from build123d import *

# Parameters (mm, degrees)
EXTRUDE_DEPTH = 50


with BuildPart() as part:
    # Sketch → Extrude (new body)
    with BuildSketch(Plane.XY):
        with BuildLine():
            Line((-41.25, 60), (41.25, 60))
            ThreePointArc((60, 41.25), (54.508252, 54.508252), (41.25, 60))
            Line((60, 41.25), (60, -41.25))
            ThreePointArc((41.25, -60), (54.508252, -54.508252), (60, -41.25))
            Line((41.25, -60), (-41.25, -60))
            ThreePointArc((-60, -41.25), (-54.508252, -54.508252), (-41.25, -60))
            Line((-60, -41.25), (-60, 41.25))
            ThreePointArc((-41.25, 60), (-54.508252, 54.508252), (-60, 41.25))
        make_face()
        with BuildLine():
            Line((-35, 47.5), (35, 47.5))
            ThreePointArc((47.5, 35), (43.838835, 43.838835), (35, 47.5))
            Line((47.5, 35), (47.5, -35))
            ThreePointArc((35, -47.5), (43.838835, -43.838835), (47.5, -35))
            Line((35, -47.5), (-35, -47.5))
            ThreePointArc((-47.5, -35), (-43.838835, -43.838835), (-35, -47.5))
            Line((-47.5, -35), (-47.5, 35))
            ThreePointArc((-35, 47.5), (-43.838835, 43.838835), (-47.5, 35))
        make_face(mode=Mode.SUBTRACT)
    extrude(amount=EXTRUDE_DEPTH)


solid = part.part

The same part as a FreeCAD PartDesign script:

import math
import FreeCAD as App
import Part
import Sketcher
Q = App.Units.Quantity

doc = App.newDocument("Part")
params = doc.addObject("Spreadsheet::Sheet", "Params")
for row, (alias, value) in enumerate([
    ("sketch1_radius", "12.499999 mm"),
    ("sketch1_width", "70 mm"),
    ("sketch1_radius2", "18.750001 mm"),
    ("sketch1_width2", "82.5 mm"),
    ("pad1_length", "50 mm"),
], start=1):
    params.set(f"A{row}", alias)
    params.set(f"B{row}", "=" + value)
    params.setAlias(f"B{row}", alias)

body = doc.addObject("PartDesign::Body", "Body")

sketch1 = body.newObject("Sketcher::SketchObject", "Sketch")
sketch1.AttachmentSupport = (doc.getObject("XY_Plane"), [""])
sketch1.MapMode = "FlatFace"
sketch1.addGeometry([
    Part.LineSegment(App.Vector(41, 60, 0), App.Vector(-41, 60, 0)),
    Part.ArcOfCircle(Part.Circle(App.Vector(-41, 41, 0), App.Vector(0, 0, 1), 19), math.radians(90), math.radians(180)),
    Part.LineSegment(App.Vector(-60, 41, 0), App.Vector(-60, -41, 0)),
    Part.ArcOfCircle(Part.Circle(App.Vector(-41, -41, 0), App.Vector(0, 0, 1), 19), math.radians(-180), math.radians(-90)),
    Part.LineSegment(App.Vector(-41, -60, 0), App.Vector(41, -60, 0)),
    Part.ArcOfCircle(Part.Circle(App.Vector(41, -41, 0), App.Vector(0, 0, 1), 19), math.radians(-90), math.radians(0)),
    Part.LineSegment(App.Vector(60, -41, 0), App.Vector(60, 41, 0)),
    Part.ArcOfCircle(Part.Circle(App.Vector(41, 41, 0), App.Vector(0, 0, 1), 19), math.radians(0), math.radians(90)),
    Part.LineSegment(App.Vector(-35, 48, 0), App.Vector(35, 48, 0)),
    Part.ArcOfCircle(Part.Circle(App.Vector(35, 35, 0), App.Vector(0, 0, 1), 12), math.radians(0), math.radians(90)),
    Part.LineSegment(App.Vector(48, 35, 0), App.Vector(48, -35, 0)),
    Part.ArcOfCircle(Part.Circle(App.Vector(35, -35, 0), App.Vector(0, 0, 1), 12), math.radians(-90), math.radians(0)),
    Part.LineSegment(App.Vector(35, -48, 0), App.Vector(-35, -48, 0)),
    Part.ArcOfCircle(Part.Circle(App.Vector(-35, -35, 0), App.Vector(0, 0, 1), 12), math.radians(180), math.radians(270)),
    Part.LineSegment(App.Vector(-48, -35, 0), App.Vector(-48, 35, 0)),
    Part.ArcOfCircle(Part.Circle(App.Vector(-35, 35, 0), App.Vector(0, 0, 1), 12), math.radians(90), math.radians(180)),
], False)
sketch1.addConstraint([
    Sketcher.Constraint("Tangent", 0, 2, 1, 1),
    Sketcher.Constraint("Tangent", 1, 2, 2, 1),
    Sketcher.Constraint("Tangent", 2, 2, 3, 1),
    Sketcher.Constraint("Tangent", 3, 2, 4, 1),
    Sketcher.Constraint("Tangent", 4, 2, 5, 1),
    Sketcher.Constraint("Tangent", 5, 2, 6, 1),
    Sketcher.Constraint("Tangent", 6, 2, 7, 1),
    Sketcher.Constraint("Tangent", 7, 2, 0, 1),
    Sketcher.Constraint("Tangent", 8, 2, 9, 2),
    Sketcher.Constraint("Tangent", 9, 1, 10, 1),
    Sketcher.Constraint("Tangent", 10, 2, 11, 2),
    Sketcher.Constraint("Tangent", 11, 1, 12, 1),
    Sketcher.Constraint("Tangent", 12, 2, 13, 2),
    Sketcher.Constraint("Tangent", 13, 1, 14, 1),
    Sketcher.Constraint("Tangent", 14, 2, 15, 2),
    Sketcher.Constraint("Tangent", 15, 1, 8, 1),
    Sketcher.Constraint("Horizontal", 0),
    Sketcher.Constraint("Vertical", 2),
    Sketcher.Constraint("Horizontal", 4),
    Sketcher.Constraint("Vertical", 6),
    Sketcher.Constraint("Horizontal", 8),
    Sketcher.Constraint("Vertical", 10),
    Sketcher.Constraint("Horizontal", 12),
    Sketcher.Constraint("Vertical", 14),
    Sketcher.Constraint("Equal", 1, 3),
    Sketcher.Constraint("Equal", 3, 5),
    Sketcher.Constraint("Equal", 5, 7),
    Sketcher.Constraint("Equal", 9, 11),
    Sketcher.Constraint("Equal", 11, 13),
    Sketcher.Constraint("Equal", 13, 15),
    Sketcher.Constraint("Symmetric", 1, 3, 5, 3, -1, 1),
    Sketcher.Constraint("Symmetric", 9, 3, 13, 3, -1, 1),
    Sketcher.Constraint("Equal", 4, 2),
    Sketcher.Constraint("Equal", 12, 10),
    Sketcher.Constraint("Radius", 9, Q("12.499999 mm")),
    Sketcher.Constraint("DistanceX", 8, 1, 8, 2, Q("70 mm")),
    Sketcher.Constraint("Radius", 1, Q("18.750001 mm")),
    Sketcher.Constraint("DistanceX", 0, 2, 0, 1, Q("82.5 mm")),
])
sketch1.setExpression("Constraints[34]", "Params.sketch1_radius")
sketch1.setExpression("Constraints[35]", "Params.sketch1_width")
sketch1.setExpression("Constraints[36]", "Params.sketch1_radius2")
sketch1.setExpression("Constraints[37]", "Params.sketch1_width2")
pad1 = body.newObject("PartDesign::Pad", "Pad")
pad1.Profile = sketch1
pad1.setExpression("Length", "Params.pad1_length")

doc.recompute()
